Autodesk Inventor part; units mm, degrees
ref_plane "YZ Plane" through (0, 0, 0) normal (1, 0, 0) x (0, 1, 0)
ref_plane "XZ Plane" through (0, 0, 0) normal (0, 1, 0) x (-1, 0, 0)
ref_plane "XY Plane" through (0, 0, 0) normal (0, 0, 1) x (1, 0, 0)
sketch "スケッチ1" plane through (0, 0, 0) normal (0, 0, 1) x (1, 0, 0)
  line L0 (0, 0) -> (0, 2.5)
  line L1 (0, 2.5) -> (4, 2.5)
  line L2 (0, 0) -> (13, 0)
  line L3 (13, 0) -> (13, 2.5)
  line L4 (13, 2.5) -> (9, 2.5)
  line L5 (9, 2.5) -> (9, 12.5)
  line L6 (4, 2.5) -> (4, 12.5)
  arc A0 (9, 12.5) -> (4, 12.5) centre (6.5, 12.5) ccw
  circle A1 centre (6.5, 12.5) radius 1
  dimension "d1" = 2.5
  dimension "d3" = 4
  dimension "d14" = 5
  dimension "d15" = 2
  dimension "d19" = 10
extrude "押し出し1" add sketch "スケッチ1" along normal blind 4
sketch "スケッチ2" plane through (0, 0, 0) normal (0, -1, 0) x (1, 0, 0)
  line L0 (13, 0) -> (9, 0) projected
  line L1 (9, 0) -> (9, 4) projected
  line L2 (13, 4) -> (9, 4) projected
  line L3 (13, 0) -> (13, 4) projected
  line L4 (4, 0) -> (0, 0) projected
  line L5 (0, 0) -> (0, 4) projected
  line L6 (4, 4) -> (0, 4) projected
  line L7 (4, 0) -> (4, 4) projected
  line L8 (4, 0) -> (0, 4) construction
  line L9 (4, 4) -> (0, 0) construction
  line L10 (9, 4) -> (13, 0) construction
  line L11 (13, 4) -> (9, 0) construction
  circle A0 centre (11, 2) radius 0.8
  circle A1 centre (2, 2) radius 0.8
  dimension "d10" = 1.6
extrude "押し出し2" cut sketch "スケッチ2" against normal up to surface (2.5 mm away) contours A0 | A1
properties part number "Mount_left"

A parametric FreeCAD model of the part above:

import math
import FreeCAD as App
import Part
import Sketcher
from FreeCAD import Vector
Q = App.Units.Quantity

doc = App.newDocument("Part")
params = doc.addObject("Spreadsheet::Sheet", "Params")
for row, (alias, value) in enumerate([
    ("sketch1_diameter", "2 mm"),
    ("sketch1_radius", "2.5 mm"),
    ("sketch1_width", "4 mm"),
    ("sketch1_height", "10 mm"),
    ("sketch1_height2", "2.5 mm"),
    ("pad1_length", "4 mm"),
    ("sketch2_diameter", "1.6 mm"),
    ("pocket1_length", "2.5 mm"),
], start=1):
    params.set(f"A{row}", alias)
    params.set(f"B{row}", "=" + value)
    params.setAlias(f"B{row}", alias)

body = doc.addObject("PartDesign::Body", "Body")

# Sketch on XY plane
sketch1 = doc.addObject("Sketcher::SketchObject", "Sketch")
body.addObject(sketch1)
sketch1.AttachmentSupport = (doc.XY_Plane, [""])
sketch1.MapMode = "FlatFace"
sketch1.addGeometry(Part.LineSegment(Vector(0, 2.5, 0), Vector(0, 0, 0)), False)
sketch1.addGeometry(Part.LineSegment(Vector(0, 0, 0), Vector(13, 0, 0)), False)
sketch1.addGeometry(Part.LineSegment(Vector(13, 0, 0), Vector(13, 2.5, 0)), False)
sketch1.addGeometry(Part.LineSegment(Vector(13, 2.5, 0), Vector(9, 2.5, 0)), False)
sketch1.addGeometry(Part.LineSegment(Vector(9, 2.5, 0), Vector(9, 12.5, 0)), False)
sketch1.addGeometry(Part.ArcOfCircle(Part.Circle(Vector(6.5, 12.5, 0), Vector(0, 0, 1), 2.5), math.radians(0), math.radians(180)), False)
sketch1.addGeometry(Part.LineSegment(Vector(4, 12.5, 0), Vector(4, 2.5, 0)), False)
sketch1.addGeometry(Part.LineSegment(Vector(4, 2.5, 0), Vector(0, 2.5, 0)), False)
sketch1.addGeometry(Part.Circle(Vector(6.5, 12.5, 0), Vector(0, 0, 1), 1), False)
sketch1.addConstraint(Sketcher.Constraint("Coincident", 0, 2, 1, 1))
sketch1.addConstraint(Sketcher.Constraint("Coincident", 1, 2, 2, 1))
sketch1.addConstraint(Sketcher.Constraint("Coincident", 2, 2, 3, 1))
sketch1.addConstraint(Sketcher.Constraint("Coincident", 3, 2, 4, 1))
sketch1.addConstraint(Sketcher.Constraint("Tangent", 4, 2, 5, 1))
sketch1.addConstraint(Sketcher.Constraint("Tangent", 5, 2, 6, 1))
sketch1.addConstraint(Sketcher.Constraint("Coincident", 6, 2, 7, 1))
sketch1.addConstraint(Sketcher.Constraint("Coincident", 7, 2, 0, 1))
sketch1.addConstraint(Sketcher.Constraint("Vertical", 0))
sketch1.addConstraint(Sketcher.Constraint("Horizontal", 1))
sketch1.addConstraint(Sketcher.Constraint("Vertical", 2))
sketch1.addConstraint(Sketcher.Constraint("Horizontal", 3))
sketch1.addConstraint(Sketcher.Constraint("Vertical", 4))
sketch1.addConstraint(Sketcher.Constraint("Vertical", 6))
sketch1.addConstraint(Sketcher.Constraint("Horizontal", 7))
sketch1.addConstraint(Sketcher.Constraint("Coincident", 0, 2, -1, 1))
sketch1.addConstraint(Sketcher.Constraint("Coincident", 8, 3, 5, 3))
sketch1.addConstraint(Sketcher.Constraint("Horizontal", 3, 2, 6, 2))
sketch1.addConstraint(Sketcher.Constraint("Equal", 3, 7))
sketch1.addConstraint(Sketcher.Constraint("Diameter", 8, Q("2 mm")))
sketch1.addConstraint(Sketcher.Constraint("Radius", 5, Q("2.5 mm")))
sketch1.addConstraint(Sketcher.Constraint("DistanceX", 3, 2, 3, 1, Q("4 mm")))
sketch1.addConstraint(Sketcher.Constraint("DistanceY", 4, 1, 4, 2, Q("10 mm")))
sketch1.addConstraint(Sketcher.Constraint("DistanceY", 0, 2, 0, 1, Q("2.5 mm")))
sketch1.setExpression("Constraints[19]", "Params.sketch1_diameter")
sketch1.setExpression("Constraints[20]", "Params.sketch1_radius")
sketch1.setExpression("Constraints[21]", "Params.sketch1_width")
sketch1.setExpression("Constraints[22]", "Params.sketch1_height")
sketch1.setExpression("Constraints[23]", "Params.sketch1_height2")
pad1 = doc.addObject("PartDesign::Pad", "Pad")
body.addObject(pad1)
pad1.Profile = sketch1
pad1.setExpression("Length", "Params.pad1_length")

# Sketch on XZ plane
sketch2 = doc.addObject("Sketcher::SketchObject", "Sketch001")
body.addObject(sketch2)
sketch2.AttachmentSupport = (doc.XZ_Plane, [""])
sketch2.MapMode = "FlatFace"
sketch2.addGeometry(Part.Circle(Vector(11, 2, 0), Vector(0, 0, 1), 0.8), False)
sketch2.addGeometry(Part.Circle(Vector(2, 2, 0), Vector(0, 0, 1), 0.8), False)
sketch2.addConstraint(Sketcher.Constraint("Equal", 0, 1))
sketch2.addConstraint(Sketcher.Constraint("Horizontal", 0, 3, 1, 3))
sketch2.addConstraint(Sketcher.Constraint("Diameter", 0, Q("1.6 mm")))
sketch2.addConstraint(Sketcher.Constraint("DistanceX", -1, 1, 0, 3, Q("11 mm")))
sketch2.addConstraint(Sketcher.Constraint("DistanceY", -1, 1, 0, 3, Q("2 mm")))
sketch2.addConstraint(Sketcher.Constraint("DistanceX", -1, 1, 1, 3, Q("2 mm")))
sketch2.setExpression("Constraints[2]", "Params.sketch2_diameter")
pocket1 = doc.addObject("PartDesign::Pocket", "Pocket")
body.addObject(pocket1)
pocket1.Profile = sketch2
pocket1.setExpression("Length", "Params.pocket1_length")

doc.recompute()
